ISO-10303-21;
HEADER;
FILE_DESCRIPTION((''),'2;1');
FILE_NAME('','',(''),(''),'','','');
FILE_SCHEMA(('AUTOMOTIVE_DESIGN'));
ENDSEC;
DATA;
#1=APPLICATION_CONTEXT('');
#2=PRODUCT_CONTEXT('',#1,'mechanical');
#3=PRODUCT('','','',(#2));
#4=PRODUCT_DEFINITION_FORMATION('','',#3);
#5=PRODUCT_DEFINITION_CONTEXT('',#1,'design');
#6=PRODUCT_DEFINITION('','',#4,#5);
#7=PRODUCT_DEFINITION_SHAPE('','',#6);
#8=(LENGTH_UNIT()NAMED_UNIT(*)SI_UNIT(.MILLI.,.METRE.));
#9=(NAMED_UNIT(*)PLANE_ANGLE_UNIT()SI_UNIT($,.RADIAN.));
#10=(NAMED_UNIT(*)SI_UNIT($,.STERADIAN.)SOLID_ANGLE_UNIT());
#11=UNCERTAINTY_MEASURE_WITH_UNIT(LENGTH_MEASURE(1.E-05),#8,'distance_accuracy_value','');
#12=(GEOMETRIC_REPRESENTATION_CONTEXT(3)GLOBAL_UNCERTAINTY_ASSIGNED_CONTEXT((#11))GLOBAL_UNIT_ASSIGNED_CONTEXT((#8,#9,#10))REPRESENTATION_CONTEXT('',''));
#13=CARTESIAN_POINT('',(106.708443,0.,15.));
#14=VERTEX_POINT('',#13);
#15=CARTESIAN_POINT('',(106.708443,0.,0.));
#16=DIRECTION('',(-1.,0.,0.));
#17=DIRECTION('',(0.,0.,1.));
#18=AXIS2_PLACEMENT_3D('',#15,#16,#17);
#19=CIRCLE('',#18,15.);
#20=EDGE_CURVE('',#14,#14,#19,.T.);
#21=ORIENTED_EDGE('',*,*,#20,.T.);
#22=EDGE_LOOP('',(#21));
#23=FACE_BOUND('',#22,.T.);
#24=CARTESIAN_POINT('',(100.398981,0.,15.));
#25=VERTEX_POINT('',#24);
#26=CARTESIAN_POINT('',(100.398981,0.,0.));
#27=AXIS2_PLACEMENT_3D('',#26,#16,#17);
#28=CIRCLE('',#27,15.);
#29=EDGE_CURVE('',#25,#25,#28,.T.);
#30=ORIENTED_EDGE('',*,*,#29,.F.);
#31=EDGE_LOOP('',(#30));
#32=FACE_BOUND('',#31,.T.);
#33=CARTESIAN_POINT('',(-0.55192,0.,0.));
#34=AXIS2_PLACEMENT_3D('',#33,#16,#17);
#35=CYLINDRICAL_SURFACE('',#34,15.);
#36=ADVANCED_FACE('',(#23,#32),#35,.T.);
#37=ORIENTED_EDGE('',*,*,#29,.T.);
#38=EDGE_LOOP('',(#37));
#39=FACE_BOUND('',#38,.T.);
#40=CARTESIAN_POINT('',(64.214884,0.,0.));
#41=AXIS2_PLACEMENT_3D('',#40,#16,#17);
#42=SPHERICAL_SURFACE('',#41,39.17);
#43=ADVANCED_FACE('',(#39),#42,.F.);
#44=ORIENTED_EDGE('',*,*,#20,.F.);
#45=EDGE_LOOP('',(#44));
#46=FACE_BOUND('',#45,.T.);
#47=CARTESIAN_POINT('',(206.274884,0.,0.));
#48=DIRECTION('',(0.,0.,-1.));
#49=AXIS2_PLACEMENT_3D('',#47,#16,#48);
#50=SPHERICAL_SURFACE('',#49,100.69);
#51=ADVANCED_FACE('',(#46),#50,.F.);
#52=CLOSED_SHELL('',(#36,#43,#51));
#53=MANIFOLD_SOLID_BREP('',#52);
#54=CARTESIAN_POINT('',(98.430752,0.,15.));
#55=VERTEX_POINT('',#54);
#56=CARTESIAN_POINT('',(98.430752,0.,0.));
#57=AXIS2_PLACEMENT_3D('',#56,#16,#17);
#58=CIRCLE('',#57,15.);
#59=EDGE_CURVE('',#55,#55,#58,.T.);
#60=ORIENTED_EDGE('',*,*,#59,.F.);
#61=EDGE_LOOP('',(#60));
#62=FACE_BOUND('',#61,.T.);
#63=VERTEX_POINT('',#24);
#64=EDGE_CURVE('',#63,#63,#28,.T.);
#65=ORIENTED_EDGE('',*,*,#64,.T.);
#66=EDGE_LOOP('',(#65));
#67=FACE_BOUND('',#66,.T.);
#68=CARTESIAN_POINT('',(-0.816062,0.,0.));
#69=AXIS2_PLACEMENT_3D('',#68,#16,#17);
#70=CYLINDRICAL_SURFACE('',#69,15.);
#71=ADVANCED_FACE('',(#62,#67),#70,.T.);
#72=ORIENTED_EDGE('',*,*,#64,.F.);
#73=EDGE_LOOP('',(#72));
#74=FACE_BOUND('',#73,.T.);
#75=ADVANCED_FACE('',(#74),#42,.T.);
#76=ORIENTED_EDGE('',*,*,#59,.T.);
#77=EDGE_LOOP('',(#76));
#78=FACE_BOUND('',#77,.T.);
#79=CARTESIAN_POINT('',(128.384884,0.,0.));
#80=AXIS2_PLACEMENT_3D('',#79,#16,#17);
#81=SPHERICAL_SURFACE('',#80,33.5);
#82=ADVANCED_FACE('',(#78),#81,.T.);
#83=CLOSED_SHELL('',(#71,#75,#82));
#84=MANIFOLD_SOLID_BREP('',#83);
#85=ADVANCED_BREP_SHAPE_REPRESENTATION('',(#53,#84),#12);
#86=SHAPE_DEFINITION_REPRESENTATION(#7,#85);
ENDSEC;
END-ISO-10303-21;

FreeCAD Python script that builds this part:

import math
import FreeCAD as App
import Part
import Sketcher

doc = App.newDocument("Part")
body = doc.addObject("PartDesign::Body", "Body")

# Sketch on XZ plane
sketch1 = body.newObject("Sketcher::SketchObject", "Sketch")
sketch1.AttachmentSupport = (doc.getObject("XZ_Plane"), [""])
sketch1.MapMode = "FlatFace"
sketch1.addGeometry([
    Part.ArcOfCircle(Part.Circle(App.Vector(128.384884, 0, 0), App.Vector(0, 0, 1), 33.5), math.radians(-180), math.radians(-153.399865)),
    Part.LineSegment(App.Vector(94.884884, 0, 0), App.Vector(103.384884, 0, 0)),
    Part.ArcOfCircle(Part.Circle(App.Vector(64.214884, 0, 0), App.Vector(0, 0, 1), 39.17), math.radians(-22.516293), math.radians(0)),
    Part.LineSegment(App.Vector(100.398981, -15, 0), App.Vector(98.430752, -15, 0)),
], False)
sketch1.addConstraint([
    Sketcher.Constraint("Coincident", 0, 1, 1, 1),
    Sketcher.Constraint("Coincident", 1, 2, 2, 2),
    Sketcher.Constraint("Coincident", 2, 1, 3, 1),
    Sketcher.Constraint("Coincident", 3, 2, 0, 2),
    Sketcher.Constraint("Horizontal", 1),
    Sketcher.Constraint("Horizontal", 3),
    Sketcher.Constraint("PointOnObject", 0, 3, -1),
    Sketcher.Constraint("PointOnObject", 2, 3, -1),
    Sketcher.Constraint("PointOnObject", 0, 1, -1),
    Sketcher.Constraint("Radius", 0, 33.5),
    Sketcher.Constraint("Radius", 2, 39.17),
    Sketcher.Constraint("DistanceX", 1, 1, 1, 2, 8.5),
    Sketcher.Constraint("DistanceY", 2, 1, -1, 1, 15.0),
    Sketcher.Constraint("DistanceX", -1, 1, 2, 1, 100.398981),
])
revolution = body.newObject("PartDesign::Revolution", "Revolution")
revolution.Profile = sketch1
revolution.ReferenceAxis = (sketch1, ["H_Axis"])
revolution.Angle = 360
body2 = doc.addObject("PartDesign::Body", "Body001")

# Sketch on XZ plane
sketch2 = body2.newObject("Sketcher::SketchObject", "Sketch001")
sketch2.AttachmentSupport = (doc.getObject("XZ_Plane001"), [""])
sketch2.MapMode = "FlatFace"
sketch2.addGeometry([
    Part.LineSegment(App.Vector(106.708443, -15, 0), App.Vector(100.398981, -15, 0)),
    Part.ArcOfCircle(Part.Circle(App.Vector(64.214884, 0, 0), App.Vector(0, 0, 1), 39.17), math.radians(-22.516293), math.radians(0)),
    Part.LineSegment(App.Vector(103.384884, 0, 0), App.Vector(105.584884, 0, 0)),
    Part.ArcOfCircle(Part.Circle(App.Vector(206.274884, 0, 0), App.Vector(0, 0, 1), 100.69), math.radians(180), math.radians(188.567363)),
], False)
sketch2.addConstraint([
    Sketcher.Constraint("Coincident", 0, 2, 1, 1),
    Sketcher.Constraint("Coincident", 1, 2, 2, 1),
    Sketcher.Constraint("Coincident", 2, 2, 3, 1),
    Sketcher.Constraint("Coincident", 3, 2, 0, 1),
    Sketcher.Constraint("Horizontal", 0),
    Sketcher.Constraint("Horizontal", 2),
    Sketcher.Constraint("PointOnObject", 1, 3, -1),
    Sketcher.Constraint("PointOnObject", 3, 3, -1),
    Sketcher.Constraint("PointOnObject", 1, 2, -1),
    Sketcher.Constraint("Radius", 1, 39.17),
    Sketcher.Constraint("Radius", 3, 100.69),
    Sketcher.Constraint("DistanceX", 2, 1, 2, 2, 2.2),
    Sketcher.Constraint("DistanceY", 0, 2, -1, 1, 15.0),
    Sketcher.Constraint("DistanceX", -1, 1, 0, 2, 100.398981),
])
revolution2 = body2.newObject("PartDesign::Revolution", "Revolution001")
revolution2.Profile = sketch2
revolution2.ReferenceAxis = (sketch2, ["H_Axis"])
revolution2.Angle = 360

doc.recompute()
